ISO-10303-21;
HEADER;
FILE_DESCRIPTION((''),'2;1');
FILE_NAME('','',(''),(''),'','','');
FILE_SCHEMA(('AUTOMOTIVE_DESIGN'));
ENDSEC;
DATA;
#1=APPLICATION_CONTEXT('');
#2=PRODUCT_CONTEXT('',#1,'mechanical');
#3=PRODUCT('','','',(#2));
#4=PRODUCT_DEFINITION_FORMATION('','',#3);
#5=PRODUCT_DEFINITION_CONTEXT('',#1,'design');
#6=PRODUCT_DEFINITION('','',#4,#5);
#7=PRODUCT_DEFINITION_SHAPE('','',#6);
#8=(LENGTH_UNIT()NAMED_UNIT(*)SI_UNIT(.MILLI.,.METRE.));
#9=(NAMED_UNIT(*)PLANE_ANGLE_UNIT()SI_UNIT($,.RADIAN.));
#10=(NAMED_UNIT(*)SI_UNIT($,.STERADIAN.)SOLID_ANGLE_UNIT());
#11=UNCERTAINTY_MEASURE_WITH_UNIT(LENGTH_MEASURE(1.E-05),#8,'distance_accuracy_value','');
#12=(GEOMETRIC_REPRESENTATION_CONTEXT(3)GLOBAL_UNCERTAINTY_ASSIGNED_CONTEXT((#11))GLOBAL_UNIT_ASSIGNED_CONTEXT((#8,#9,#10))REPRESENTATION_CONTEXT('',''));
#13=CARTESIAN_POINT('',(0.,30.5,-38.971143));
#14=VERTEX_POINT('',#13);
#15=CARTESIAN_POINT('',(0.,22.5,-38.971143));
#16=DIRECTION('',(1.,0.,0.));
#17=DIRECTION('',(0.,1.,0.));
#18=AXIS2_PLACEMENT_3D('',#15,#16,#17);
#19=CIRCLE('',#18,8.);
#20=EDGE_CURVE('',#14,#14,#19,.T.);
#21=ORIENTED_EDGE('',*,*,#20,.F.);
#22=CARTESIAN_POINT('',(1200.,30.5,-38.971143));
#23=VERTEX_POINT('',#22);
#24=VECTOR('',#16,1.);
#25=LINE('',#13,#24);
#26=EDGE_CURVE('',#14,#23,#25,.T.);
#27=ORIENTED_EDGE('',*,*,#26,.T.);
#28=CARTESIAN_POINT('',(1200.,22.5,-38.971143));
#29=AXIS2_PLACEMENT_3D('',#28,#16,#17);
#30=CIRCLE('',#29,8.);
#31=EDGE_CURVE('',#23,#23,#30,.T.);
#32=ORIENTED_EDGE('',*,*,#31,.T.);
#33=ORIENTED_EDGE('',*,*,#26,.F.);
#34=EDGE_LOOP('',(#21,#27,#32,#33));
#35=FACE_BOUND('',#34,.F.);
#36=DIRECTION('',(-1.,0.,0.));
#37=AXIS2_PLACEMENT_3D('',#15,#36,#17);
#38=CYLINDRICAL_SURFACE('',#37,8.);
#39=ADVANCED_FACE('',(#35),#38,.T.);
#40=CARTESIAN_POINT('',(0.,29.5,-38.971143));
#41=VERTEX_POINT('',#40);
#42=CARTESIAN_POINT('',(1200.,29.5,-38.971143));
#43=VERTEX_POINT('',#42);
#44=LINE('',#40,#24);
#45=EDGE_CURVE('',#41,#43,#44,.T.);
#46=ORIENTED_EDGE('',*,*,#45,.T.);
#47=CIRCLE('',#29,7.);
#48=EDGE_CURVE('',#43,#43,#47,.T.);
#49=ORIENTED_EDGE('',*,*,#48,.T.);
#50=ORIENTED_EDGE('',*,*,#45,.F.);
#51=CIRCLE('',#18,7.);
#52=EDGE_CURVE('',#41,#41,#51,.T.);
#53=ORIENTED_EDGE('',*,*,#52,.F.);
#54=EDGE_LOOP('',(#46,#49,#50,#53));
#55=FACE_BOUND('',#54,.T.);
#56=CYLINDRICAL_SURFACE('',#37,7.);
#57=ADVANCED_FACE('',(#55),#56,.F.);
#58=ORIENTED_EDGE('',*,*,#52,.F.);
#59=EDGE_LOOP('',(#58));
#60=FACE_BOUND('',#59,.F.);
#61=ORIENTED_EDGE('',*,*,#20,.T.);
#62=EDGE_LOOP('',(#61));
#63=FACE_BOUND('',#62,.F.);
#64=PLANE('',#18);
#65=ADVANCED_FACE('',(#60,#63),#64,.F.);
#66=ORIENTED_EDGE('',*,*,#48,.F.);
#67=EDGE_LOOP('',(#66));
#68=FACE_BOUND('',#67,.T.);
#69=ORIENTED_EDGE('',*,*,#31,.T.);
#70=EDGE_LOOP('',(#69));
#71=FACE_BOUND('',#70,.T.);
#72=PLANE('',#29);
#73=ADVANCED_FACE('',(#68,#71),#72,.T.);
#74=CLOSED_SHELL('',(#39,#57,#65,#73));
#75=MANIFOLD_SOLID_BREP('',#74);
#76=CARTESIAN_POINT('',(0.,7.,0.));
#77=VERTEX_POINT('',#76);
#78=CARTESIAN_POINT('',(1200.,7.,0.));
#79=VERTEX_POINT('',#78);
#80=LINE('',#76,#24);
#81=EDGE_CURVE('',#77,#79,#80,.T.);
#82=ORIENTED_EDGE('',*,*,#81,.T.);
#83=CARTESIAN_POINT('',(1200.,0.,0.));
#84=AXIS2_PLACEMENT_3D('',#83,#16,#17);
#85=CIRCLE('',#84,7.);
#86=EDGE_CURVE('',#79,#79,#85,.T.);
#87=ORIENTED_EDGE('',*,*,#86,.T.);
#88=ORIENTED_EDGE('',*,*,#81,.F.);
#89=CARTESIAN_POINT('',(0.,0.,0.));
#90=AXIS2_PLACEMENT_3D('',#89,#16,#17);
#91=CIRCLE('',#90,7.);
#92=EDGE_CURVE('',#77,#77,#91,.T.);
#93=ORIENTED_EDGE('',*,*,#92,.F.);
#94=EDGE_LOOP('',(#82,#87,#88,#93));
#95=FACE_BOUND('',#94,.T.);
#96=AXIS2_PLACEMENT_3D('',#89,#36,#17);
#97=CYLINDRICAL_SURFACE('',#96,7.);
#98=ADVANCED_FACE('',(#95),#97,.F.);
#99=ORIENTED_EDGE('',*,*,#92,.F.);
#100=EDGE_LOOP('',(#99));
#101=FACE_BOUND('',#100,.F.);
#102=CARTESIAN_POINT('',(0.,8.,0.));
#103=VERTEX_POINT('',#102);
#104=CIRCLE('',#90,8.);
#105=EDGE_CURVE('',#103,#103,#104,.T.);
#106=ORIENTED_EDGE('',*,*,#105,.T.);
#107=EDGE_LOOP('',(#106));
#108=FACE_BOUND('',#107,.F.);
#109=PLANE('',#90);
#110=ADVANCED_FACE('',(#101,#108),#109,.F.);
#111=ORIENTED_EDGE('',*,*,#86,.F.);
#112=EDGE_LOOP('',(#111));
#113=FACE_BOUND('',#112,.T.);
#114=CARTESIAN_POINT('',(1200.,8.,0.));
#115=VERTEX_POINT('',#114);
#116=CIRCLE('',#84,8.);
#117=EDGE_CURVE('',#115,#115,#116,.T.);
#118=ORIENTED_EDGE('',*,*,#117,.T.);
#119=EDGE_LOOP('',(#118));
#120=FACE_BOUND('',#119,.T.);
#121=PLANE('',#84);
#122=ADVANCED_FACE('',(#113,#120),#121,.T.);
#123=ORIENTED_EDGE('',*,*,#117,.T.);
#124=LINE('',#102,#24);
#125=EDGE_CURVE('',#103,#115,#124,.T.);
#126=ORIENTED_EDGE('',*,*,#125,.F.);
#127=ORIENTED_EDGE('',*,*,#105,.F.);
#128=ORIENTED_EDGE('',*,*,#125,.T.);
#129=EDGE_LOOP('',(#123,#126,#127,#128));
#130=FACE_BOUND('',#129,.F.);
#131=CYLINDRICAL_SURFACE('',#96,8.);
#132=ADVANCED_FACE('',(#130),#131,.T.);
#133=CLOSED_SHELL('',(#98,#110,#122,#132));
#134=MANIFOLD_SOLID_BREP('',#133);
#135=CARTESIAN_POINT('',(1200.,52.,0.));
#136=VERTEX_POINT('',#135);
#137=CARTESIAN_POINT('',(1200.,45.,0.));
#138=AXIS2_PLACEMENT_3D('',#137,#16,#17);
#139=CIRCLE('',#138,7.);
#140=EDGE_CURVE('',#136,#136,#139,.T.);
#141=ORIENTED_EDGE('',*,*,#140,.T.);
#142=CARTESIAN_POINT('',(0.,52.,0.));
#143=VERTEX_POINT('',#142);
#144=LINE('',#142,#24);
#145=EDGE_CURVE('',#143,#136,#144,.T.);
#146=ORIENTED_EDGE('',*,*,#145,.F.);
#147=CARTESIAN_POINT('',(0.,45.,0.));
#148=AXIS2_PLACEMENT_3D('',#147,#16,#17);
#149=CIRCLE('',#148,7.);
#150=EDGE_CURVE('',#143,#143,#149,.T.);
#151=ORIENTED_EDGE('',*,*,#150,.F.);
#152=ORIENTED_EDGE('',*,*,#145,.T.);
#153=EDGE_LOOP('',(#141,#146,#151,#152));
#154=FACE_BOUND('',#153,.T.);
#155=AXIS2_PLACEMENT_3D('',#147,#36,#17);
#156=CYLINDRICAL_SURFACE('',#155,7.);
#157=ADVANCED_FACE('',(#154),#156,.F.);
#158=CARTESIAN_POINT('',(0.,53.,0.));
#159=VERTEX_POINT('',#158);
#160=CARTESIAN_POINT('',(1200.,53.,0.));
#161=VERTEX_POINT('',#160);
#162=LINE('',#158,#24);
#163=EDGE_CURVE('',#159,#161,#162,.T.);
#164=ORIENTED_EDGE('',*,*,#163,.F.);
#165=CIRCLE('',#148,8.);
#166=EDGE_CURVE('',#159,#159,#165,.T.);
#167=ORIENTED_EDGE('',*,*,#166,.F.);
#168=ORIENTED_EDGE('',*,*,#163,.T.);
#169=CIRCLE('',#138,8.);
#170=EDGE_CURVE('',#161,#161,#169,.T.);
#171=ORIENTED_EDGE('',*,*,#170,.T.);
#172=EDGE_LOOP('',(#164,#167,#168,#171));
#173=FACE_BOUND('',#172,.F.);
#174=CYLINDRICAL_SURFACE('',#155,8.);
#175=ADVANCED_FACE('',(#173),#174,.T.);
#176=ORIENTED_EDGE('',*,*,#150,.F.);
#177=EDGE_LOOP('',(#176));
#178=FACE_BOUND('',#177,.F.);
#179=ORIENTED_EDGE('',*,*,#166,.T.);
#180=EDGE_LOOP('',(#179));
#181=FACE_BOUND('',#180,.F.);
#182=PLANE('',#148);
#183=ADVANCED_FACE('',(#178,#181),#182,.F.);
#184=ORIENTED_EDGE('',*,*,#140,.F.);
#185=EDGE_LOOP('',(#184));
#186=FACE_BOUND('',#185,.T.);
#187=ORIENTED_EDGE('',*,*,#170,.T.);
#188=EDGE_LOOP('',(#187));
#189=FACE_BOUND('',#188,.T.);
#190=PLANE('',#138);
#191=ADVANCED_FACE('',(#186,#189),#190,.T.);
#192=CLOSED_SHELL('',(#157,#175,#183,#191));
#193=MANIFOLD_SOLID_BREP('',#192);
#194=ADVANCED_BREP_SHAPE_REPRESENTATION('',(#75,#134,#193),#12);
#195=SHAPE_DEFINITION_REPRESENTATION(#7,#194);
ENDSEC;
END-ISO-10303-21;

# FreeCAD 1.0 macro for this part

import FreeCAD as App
import Part
import Sketcher

V = App.Vector
Q = App.Units.Quantity

doc = App.newDocument("Part")
params = doc.addObject("Spreadsheet::Sheet", "Params")
for row, (alias, value) in enumerate([
    ("sketch1_diameter", "16 mm"),
    ("sketch1_diameter2", "14 mm"),
    ("pad1_length", "1200 mm"),
], start=1):
    params.set(f"A{row}", alias)
    params.set(f"B{row}", "=" + value)
    params.setAlias(f"B{row}", alias)

body = doc.addObject("PartDesign::Body", "Body")
body.AllowCompound = True

sketch1 = body.newObject("Sketcher::SketchObject", "Sketch")
sketch1.AttachmentSupport = (doc.getObject("YZ_Plane"), [""])
sketch1.MapMode = "FlatFace"
sketch1.addGeometry([
    Part.Circle(V(0, 0, 0), V(0, 0, 1), 8),
    Part.Circle(V(0, 0, 0), V(0, 0, 1), 7),
    Part.Circle(V(45, 0, 0), V(0, 0, 1), 8),
    Part.Circle(V(45, 0, 0), V(0, 0, 1), 7),
    Part.Circle(V(22.5, -38.971143, 0), V(0, 0, 1), 8),
    Part.Circle(V(22.5, -38.971143, 0), V(0, 0, 1), 7),
], False)
sketch1.addConstraint([
    Sketcher.Constraint("Coincident", 0, 3, -1, 1),
    Sketcher.Constraint("Coincident", 1, 3, -1, 1),
    Sketcher.Constraint("Coincident", 3, 3, 2, 3),
    Sketcher.Constraint("Coincident", 5, 3, 4, 3),
    Sketcher.Constraint("Equal", 0, 2),
    Sketcher.Constraint("Equal", 1, 3),
    Sketcher.Constraint("Equal", 2, 4),
    Sketcher.Constraint("Equal", 3, 5),
    Sketcher.Constraint("PointOnObject", 2, 3, -1),
    Sketcher.Constraint("Diameter", 0, Q("16 mm")),
    Sketcher.Constraint("Diameter", 1, Q("14 mm")),
    Sketcher.Constraint("DistanceX", -1, 1, 2, 3, Q("45 mm")),
    Sketcher.Constraint("DistanceX", -1, 1, 4, 3, Q("22.5 mm")),
    Sketcher.Constraint("DistanceY", 4, 3, -1, 1, Q("38.971143 mm")),
])
sketch1.setExpression("Constraints[9]", "Params.sketch1_diameter")
sketch1.setExpression("Constraints[10]", "Params.sketch1_diameter2")
pad1 = body.newObject("PartDesign::Pad", "Pad")
pad1.Profile = sketch1
pad1.setExpression("Length", "Params.pad1_length")

doc.recompute()
